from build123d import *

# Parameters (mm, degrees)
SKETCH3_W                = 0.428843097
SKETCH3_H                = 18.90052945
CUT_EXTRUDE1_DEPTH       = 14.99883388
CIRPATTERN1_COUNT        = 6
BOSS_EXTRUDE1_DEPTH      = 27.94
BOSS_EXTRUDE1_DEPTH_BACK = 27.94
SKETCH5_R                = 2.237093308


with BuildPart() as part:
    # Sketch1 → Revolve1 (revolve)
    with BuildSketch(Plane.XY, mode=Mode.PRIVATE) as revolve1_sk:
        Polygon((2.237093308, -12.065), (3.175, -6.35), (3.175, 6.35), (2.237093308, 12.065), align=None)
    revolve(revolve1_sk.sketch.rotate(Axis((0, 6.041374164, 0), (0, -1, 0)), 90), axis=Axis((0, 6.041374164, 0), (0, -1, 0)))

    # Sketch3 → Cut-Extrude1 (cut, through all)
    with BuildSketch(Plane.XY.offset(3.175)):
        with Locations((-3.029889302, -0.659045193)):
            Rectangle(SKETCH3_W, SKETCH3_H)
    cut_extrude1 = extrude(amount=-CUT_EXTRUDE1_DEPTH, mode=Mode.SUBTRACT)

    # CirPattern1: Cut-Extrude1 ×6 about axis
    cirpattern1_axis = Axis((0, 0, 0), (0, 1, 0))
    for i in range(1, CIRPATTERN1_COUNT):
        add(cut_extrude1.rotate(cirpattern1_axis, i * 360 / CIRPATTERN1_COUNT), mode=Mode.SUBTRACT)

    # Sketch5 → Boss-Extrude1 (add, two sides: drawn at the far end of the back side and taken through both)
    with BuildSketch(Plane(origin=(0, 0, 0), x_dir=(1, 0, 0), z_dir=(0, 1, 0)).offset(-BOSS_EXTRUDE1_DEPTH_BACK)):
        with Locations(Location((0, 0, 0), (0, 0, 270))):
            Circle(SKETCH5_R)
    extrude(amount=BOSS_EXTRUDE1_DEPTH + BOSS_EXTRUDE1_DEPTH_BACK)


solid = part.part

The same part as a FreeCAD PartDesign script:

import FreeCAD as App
import Part
import Sketcher
from FreeCAD import Vector
Q = App.Units.Quantity


def add_polygon(sketch, points):
    """Adds a closed chain of lines whose ends are joined by coincident constraints."""
    first, n = sketch.GeometryCount, len(points)
    for a, b in zip(points, points[1:] + points[:1]):
        sketch.addGeometry(Part.LineSegment(App.Vector(*a, 0), App.Vector(*b, 0)), False)
    for i in range(n):
        sketch.addConstraint(Sketcher.Constraint("Coincident", first + i, 2, first + (i + 1) % n, 1))

doc = App.newDocument("Part")
body = doc.addObject("PartDesign::Body", "Body")

# Sketch on XY plane
sketch1 = body.newObject("Sketcher::SketchObject", "Sketch")
sketch1.AttachmentSupport = (doc.getObject("XY_Plane"), [""])
sketch1.MapMode = "FlatFace"
add_polygon(sketch1, [(2, -12), (3, -6), (3, 6), (2, 12)])  # lines 0-3
sketch1.addConstraint([
    Sketcher.Constraint("Vertical", 1),
    Sketcher.Constraint("Vertical", 3),
    Sketcher.Constraint("Equal", 0, 2),
    Sketcher.Constraint("DistanceY", 1, 1, 1, 2, Q("0.5 in")),
    Sketcher.Constraint("DistanceY", 3, 2, 3, 1, Q("0.95 in")),
    Sketcher.Constraint("DistanceY", 0, 2, -1, 1, Q("0.25 in")),
    Sketcher.Constraint("DistanceX", -1, 1, 0, 2, Q("0.125 in")),
    Sketcher.Constraint("Distance", 0, Q("5.79145 mm")),
])
revolution = body.newObject("PartDesign::Revolution", "Revolution")
revolution.Profile = sketch1
revolution.ReferenceAxis = (sketch1, ["V_Axis"])
revolution.Angle = 360

# Sketch on XY plane
sketch2 = body.newObject("Sketcher::SketchObject", "Sketch001")
sketch2.AttachmentSupport = (doc.getObject("XY_Plane"), [""])
sketch2.MapMode = "FlatFace"
sketch2.AttachmentOffset = App.Placement(Vector(0, 0, 0.125 * 25.4), App.Rotation())
add_polygon(sketch2, [(-3.24, 8.79), (-3.24, -10.11), (-2.82, -10.11), (-2.82, 8.79)])  # lines 0-3
sketch2.addConstraint([
    Sketcher.Constraint("Vertical", 0),
    Sketcher.Constraint("Horizontal", 1),
    Sketcher.Constraint("Vertical", 2),
    Sketcher.Constraint("Horizontal", 3),
    Sketcher.Constraint("DistanceY", 0, 2, 0, 1, Q("18.900529 mm")),
    Sketcher.Constraint("DistanceX", 1, 1, 1, 2, Q("0.428843 mm")),
    Sketcher.Constraint("DistanceX", 0, 2, -1, 1, Q("3.244311 mm")),
    Sketcher.Constraint("DistanceY", 0, 2, -1, 1, Q("10.10931 mm")),
])
pocket1 = body.newObject("PartDesign::Pocket", "Pocket")
pocket1.Profile = sketch2
pocket1.Type = "ThroughAll"
doc.recompute()

polarpattern = body.newObject("PartDesign::PolarPattern", "PolarPattern")
polarpattern.Originals = [pocket1]
polarpattern.Axis = (doc.getObject("Y_Axis"), [""])
polarpattern.Angle = 360
polarpattern.Occurrences = 6
body.Tip = polarpattern

# Sketch on XZ plane
sketch3 = body.newObject("Sketcher::SketchObject", "Sketch002")
sketch3.AttachmentSupport = (doc.getObject("XZ_Plane"), [""])
sketch3.MapMode = "FlatFace"
sketch3.addGeometry(Part.Circle(Vector(0, 0, 0), Vector(0, 0, 1), 2.2), False)
sketch3.addConstraint([
    Sketcher.Constraint("Coincident", 0, 3, -1, 1),
    Sketcher.Constraint("Diameter", 0, Q("4.474187 mm")),
])
pad1 = body.newObject("PartDesign::Pad", "Pad")
pad1.Profile = sketch3
pad1.Type = "TwoLengths"
pad1.Length = Q("1.1 in")
pad1.Length2 = Q("1.1 in")
pad1.Reversed = True

doc.recompute()
